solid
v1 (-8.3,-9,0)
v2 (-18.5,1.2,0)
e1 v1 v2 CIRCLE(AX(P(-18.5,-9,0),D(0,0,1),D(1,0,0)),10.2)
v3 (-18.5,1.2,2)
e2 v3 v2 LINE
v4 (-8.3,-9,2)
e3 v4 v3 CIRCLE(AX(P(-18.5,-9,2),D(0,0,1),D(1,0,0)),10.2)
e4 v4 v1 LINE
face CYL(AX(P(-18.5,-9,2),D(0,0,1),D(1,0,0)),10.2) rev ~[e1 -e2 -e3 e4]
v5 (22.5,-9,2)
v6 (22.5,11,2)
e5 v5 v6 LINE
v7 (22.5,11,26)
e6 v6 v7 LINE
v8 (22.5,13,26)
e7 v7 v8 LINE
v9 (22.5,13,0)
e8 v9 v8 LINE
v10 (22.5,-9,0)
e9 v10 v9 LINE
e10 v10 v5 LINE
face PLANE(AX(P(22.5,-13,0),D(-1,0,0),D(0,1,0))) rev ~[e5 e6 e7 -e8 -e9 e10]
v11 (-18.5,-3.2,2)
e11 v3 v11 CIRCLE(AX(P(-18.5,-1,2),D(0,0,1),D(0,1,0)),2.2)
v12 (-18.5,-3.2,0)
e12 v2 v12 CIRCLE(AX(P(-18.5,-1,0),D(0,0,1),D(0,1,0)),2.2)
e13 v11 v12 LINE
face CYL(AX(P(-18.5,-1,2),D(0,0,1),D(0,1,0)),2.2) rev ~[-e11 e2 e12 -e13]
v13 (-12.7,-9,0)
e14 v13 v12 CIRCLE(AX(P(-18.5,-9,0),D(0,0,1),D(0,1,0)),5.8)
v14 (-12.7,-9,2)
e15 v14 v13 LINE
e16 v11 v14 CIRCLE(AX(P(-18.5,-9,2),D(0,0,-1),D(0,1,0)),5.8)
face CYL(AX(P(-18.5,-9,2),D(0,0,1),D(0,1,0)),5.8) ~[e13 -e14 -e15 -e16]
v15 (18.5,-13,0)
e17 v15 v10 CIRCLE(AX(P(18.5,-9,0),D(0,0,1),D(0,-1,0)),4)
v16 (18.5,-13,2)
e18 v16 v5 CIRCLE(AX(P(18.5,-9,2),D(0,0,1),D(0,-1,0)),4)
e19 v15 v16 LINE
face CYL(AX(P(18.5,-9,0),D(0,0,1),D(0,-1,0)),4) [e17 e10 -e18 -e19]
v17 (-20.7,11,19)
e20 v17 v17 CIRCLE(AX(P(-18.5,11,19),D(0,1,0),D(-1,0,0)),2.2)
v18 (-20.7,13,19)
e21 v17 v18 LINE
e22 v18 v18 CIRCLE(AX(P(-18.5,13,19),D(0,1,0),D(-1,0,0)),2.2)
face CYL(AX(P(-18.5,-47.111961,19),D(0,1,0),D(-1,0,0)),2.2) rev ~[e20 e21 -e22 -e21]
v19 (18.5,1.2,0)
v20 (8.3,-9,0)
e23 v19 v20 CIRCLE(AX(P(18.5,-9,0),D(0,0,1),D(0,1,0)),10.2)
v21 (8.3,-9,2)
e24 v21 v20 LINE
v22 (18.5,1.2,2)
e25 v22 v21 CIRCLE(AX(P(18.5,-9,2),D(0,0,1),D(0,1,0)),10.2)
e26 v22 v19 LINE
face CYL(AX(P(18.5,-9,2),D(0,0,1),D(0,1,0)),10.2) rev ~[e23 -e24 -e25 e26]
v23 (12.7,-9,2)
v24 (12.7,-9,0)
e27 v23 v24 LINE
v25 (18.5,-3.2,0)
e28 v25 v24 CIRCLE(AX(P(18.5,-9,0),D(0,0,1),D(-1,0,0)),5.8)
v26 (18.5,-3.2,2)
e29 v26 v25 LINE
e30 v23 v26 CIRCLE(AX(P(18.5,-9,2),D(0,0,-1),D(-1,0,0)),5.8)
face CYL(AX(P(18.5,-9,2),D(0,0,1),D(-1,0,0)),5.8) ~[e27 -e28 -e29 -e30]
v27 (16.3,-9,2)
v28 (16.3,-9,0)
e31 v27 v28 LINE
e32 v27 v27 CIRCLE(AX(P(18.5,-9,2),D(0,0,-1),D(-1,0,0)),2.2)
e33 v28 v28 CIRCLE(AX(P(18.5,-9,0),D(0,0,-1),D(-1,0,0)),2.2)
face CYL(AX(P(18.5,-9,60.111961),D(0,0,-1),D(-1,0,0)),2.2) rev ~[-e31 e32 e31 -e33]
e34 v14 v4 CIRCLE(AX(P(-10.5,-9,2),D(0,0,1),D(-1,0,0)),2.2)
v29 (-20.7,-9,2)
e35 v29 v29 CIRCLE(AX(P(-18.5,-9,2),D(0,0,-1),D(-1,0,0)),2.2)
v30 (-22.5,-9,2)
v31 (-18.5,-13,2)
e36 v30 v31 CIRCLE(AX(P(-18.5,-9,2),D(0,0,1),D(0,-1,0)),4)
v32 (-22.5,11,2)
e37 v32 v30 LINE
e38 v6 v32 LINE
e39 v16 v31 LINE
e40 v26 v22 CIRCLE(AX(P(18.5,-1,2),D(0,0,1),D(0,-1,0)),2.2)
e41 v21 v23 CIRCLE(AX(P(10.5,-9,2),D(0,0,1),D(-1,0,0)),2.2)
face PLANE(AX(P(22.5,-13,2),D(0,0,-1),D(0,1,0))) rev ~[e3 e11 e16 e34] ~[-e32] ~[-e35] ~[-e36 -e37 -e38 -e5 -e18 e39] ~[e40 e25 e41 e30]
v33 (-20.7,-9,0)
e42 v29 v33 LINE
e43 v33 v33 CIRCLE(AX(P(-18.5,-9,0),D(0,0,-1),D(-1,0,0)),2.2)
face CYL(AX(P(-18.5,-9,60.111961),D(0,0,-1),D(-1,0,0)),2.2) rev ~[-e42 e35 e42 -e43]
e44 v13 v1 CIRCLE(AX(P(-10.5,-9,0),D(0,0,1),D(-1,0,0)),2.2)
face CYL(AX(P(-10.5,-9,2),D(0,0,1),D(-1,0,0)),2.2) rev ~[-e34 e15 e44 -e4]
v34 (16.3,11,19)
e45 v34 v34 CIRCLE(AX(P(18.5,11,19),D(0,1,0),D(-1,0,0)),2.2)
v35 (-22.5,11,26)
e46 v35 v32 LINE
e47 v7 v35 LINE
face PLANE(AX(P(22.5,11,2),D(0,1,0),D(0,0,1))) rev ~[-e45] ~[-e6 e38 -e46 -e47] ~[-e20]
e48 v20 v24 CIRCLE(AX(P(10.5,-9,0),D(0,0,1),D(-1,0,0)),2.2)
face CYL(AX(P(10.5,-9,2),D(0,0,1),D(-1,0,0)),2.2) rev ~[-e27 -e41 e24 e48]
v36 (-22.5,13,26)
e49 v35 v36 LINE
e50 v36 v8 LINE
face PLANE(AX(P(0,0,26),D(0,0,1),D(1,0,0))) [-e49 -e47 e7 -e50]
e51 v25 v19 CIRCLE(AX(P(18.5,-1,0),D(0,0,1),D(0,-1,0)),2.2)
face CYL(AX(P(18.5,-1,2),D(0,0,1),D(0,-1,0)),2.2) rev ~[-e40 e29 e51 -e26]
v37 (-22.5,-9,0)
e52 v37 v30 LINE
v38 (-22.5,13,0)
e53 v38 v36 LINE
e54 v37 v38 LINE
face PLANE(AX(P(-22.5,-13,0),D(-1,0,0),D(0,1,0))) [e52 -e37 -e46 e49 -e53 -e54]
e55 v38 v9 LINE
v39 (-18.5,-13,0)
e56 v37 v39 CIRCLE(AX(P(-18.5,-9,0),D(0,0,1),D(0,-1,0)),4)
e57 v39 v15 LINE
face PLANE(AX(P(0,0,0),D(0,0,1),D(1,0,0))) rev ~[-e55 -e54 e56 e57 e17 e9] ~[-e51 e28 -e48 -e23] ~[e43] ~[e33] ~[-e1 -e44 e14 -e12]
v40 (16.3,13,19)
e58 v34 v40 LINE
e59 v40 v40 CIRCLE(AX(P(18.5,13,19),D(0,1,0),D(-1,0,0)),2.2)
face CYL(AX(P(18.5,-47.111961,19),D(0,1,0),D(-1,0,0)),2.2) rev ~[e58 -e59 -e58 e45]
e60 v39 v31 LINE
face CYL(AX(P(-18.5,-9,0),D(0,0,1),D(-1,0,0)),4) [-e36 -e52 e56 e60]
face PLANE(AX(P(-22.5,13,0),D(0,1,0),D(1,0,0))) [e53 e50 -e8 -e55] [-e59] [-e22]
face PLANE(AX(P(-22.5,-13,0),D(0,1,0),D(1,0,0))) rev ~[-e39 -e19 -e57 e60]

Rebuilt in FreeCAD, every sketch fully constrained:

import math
import FreeCAD as App
import Part
import Sketcher

V = App.Vector
Q = App.Units.Quantity


def edges_at(feature, points):
    """Names of the edges that pass closest to the given points."""
    edges = feature.Shape.Edges
    near = lambda p: min(range(len(edges)), key=lambda i: edges[i].distToShape(Part.Vertex(*p))[0])
    return sorted({f"Edge{near(p) + 1}" for p in points})

doc = App.newDocument("Part")
params = doc.addObject("Spreadsheet::Sheet", "Params")
for row, (alias, value) in enumerate([
    ("sketch1_width", "45 mm"),
    ("sketch1_height", "26 mm"),
    ("pad1_length", "26 mm"),
    ("sketch2_width", "24 mm"),
    ("sketch3_diameter", "4.4 mm"),
    ("hole_diameter", "4.4 mm"),
    ("sketch4_diameter", "4.4 mm"),
    ("hole2_diameter", "4.4 mm"),
    ("sketch5_radius", "2.2 mm"),
    ("sketch5_radius2", "10.2 mm"),
    ("fillet_radius", "4 mm"),
], start=1):
    params.set(f"A{row}", alias)
    params.set(f"B{row}", "=" + value)
    params.setAlias(f"B{row}", alias)

body = doc.addObject("PartDesign::Body", "Body")

# Sketch on XY plane
sketch1 = body.newObject("Sketcher::SketchObject", "Sketch")
sketch1.AttachmentSupport = (doc.getObject("XY_Plane"), [""])
sketch1.MapMode = "FlatFace"
sketch1.addGeometry(Part.LineSegment(V(-22, 13, 0), V(-22, -13, 0)), False)
sketch1.addGeometry(Part.LineSegment(V(-22, -13, 0), V(22, -13, 0)), False)
sketch1.addGeometry(Part.LineSegment(V(22, -13, 0), V(22, 13, 0)), False)
sketch1.addGeometry(Part.LineSegment(V(22, 13, 0), V(-22, 13, 0)), False)
sketch1.addConstraint(Sketcher.Constraint("Coincident", 0, 2, 1, 1))
sketch1.addConstraint(Sketcher.Constraint("Coincident", 1, 2, 2, 1))
sketch1.addConstraint(Sketcher.Constraint("Coincident", 2, 2, 3, 1))
sketch1.addConstraint(Sketcher.Constraint("Coincident", 3, 2, 0, 1))
sketch1.addConstraint(Sketcher.Constraint("Vertical", 0))
sketch1.addConstraint(Sketcher.Constraint("Horizontal", 1))
sketch1.addConstraint(Sketcher.Constraint("Vertical", 2))
sketch1.addConstraint(Sketcher.Constraint("Horizontal", 3))
sketch1.addConstraint(Sketcher.Constraint("Symmetric", 0, 2, 2, 2, -1, 1))
sketch1.addConstraint(Sketcher.Constraint("DistanceX", 1, 1, 1, 2, Q("45 mm")))
sketch1.addConstraint(Sketcher.Constraint("DistanceY", 0, 2, 0, 1, Q("26 mm")))
sketch1.setExpression("Constraints[9]", "Params.sketch1_width")
sketch1.setExpression("Constraints[10]", "Params.sketch1_height")
pad1 = body.newObject("PartDesign::Pad", "Pad")
pad1.Profile = sketch1
pad1.setExpression("Length", "Params.pad1_length")

# Sketch on YZ plane
sketch2 = body.newObject("Sketcher::SketchObject", "Sketch001")
sketch2.AttachmentSupport = (doc.getObject("YZ_Plane"), [""])
sketch2.MapMode = "FlatFace"
sketch2.AttachmentOffset = App.Placement(V(0, 0, 22.5), App.Rotation())
sketch2.addGeometry(Part.LineSegment(V(-13, 26, 0), V(-13, 2, 0)), False)
sketch2.addGeometry(Part.LineSegment(V(-13, 2, 0), V(11, 2, 0)), False)
sketch2.addGeometry(Part.LineSegment(V(11, 2, 0), V(11, 26, 0)), False)
sketch2.addGeometry(Part.LineSegment(V(11, 26, 0), V(-13, 26, 0)), False)
sketch2.addConstraint(Sketcher.Constraint("Coincident", 0, 2, 1, 1))
sketch2.addConstraint(Sketcher.Constraint("Coincident", 1, 2, 2, 1))
sketch2.addConstraint(Sketcher.Constraint("Coincident", 2, 2, 3, 1))
sketch2.addConstraint(Sketcher.Constraint("Coincident", 3, 2, 0, 1))
sketch2.addConstraint(Sketcher.Constraint("Vertical", 0))
sketch2.addConstraint(Sketcher.Constraint("Horizontal", 1))
sketch2.addConstraint(Sketcher.Constraint("Vertical", 2))
sketch2.addConstraint(Sketcher.Constraint("Horizontal", 3))
sketch2.addConstraint(Sketcher.Constraint("Equal", 3, 0))
sketch2.addConstraint(Sketcher.Constraint("DistanceX", 1, 1, 1, 2, Q("24 mm")))
sketch2.addConstraint(Sketcher.Constraint("DistanceX", 0, 2, -1, 1, Q("13 mm")))
sketch2.addConstraint(Sketcher.Constraint("DistanceY", -1, 1, 0, 2, Q("2 mm")))
sketch2.setExpression("Constraints[9]", "Params.sketch2_width")
pocket1 = body.newObject("PartDesign::Pocket", "Pocket")
pocket1.Profile = sketch2
pocket1.Type = "ThroughAll"

# Sketch on XY plane
sketch3 = body.newObject("Sketcher::SketchObject", "Sketch002")
sketch3.AttachmentSupport = (doc.getObject("XY_Plane"), [""])
sketch3.MapMode = "FlatFace"
sketch3.AttachmentOffset = App.Placement(V(0, 0, 2), App.Rotation())
sketch3.addGeometry(Part.Circle(V(-18.5, -9, 0), V(0, 0, 1), 2.2), False)
sketch3.addGeometry(Part.Circle(V(18.5, -9, 0), V(0, 0, 1), 2.2), False)
sketch3.addConstraint(Sketcher.Constraint("Equal", 0, 1))
sketch3.addConstraint(Sketcher.Constraint("Symmetric", 0, 3, 1, 3, -2))
sketch3.addConstraint(Sketcher.Constraint("Diameter", 0, Q("4.4 mm")))
sketch3.addConstraint(Sketcher.Constraint("DistanceY", 0, 3, -1, 1, Q("9 mm")))
sketch3.addConstraint(Sketcher.Constraint("DistanceX", 0, 3, 1, 3, Q("37 mm")))
sketch3.setExpression("Constraints[2]", "Params.sketch3_diameter")
doc.recompute()
hole = body.newObject("PartDesign::Hole", "Hole")
hole.Profile = sketch3
hole.ThreadType = "None"
hole.setExpression("Diameter", "Params.hole_diameter")
hole.DepthType = "ThroughAll"

# Sketch on XZ plane
sketch4 = body.newObject("Sketcher::SketchObject", "Sketch003")
sketch4.AttachmentSupport = (doc.getObject("XZ_Plane"), [""])
sketch4.MapMode = "FlatFace"
sketch4.AttachmentOffset = App.Placement(V(0, 0, -11), App.Rotation())
sketch4.addGeometry(Part.Circle(V(-18.5, 19, 0), V(0, 0, 1), 2.2), False)
sketch4.addGeometry(Part.Circle(V(18.5, 19, 0), V(0, 0, 1), 2.2), False)
sketch4.addConstraint(Sketcher.Constraint("Equal", 0, 1))
sketch4.addConstraint(Sketcher.Constraint("Symmetric", 0, 3, 1, 3, -2))
sketch4.addConstraint(Sketcher.Constraint("Diameter", 0, Q("4.4 mm")))
sketch4.addConstraint(Sketcher.Constraint("DistanceY", -1, 1, 0, 3, Q("19 mm")))
sketch4.addConstraint(Sketcher.Constraint("DistanceX", 0, 3, 1, 3, Q("37 mm")))
sketch4.setExpression("Constraints[2]", "Params.sketch4_diameter")
doc.recompute()
hole2 = body.newObject("PartDesign::Hole", "Hole001")
hole2.Profile = sketch4
hole2.ThreadType = "None"
hole2.setExpression("Diameter", "Params.hole2_diameter")
hole2.DepthType = "ThroughAll"

# Sketch on XY plane
sketch5 = body.newObject("Sketcher::SketchObject", "Sketch004")
sketch5.AttachmentSupport = (doc.getObject("XY_Plane"), [""])
sketch5.MapMode = "FlatFace"
sketch5.AttachmentOffset = App.Placement(V(0, 0, 2), App.Rotation())
sketch5.addGeometry(Part.ArcOfCircle(Part.Circle(V(-10.5, -9, 0), V(0, 0, 1), 2.2), math.radians(180), math.radians(360)), False)
sketch5.addGeometry(Part.ArcOfCircle(Part.Circle(V(-18.5, -9, 0), V(0, 0, 1), 10.2), math.radians(0), math.radians(90)), False)
sketch5.addGeometry(Part.ArcOfCircle(Part.Circle(V(-18.5, -1, 0), V(0, 0, 1), 2.2), math.radians(90), math.radians(270)), False)
sketch5.addGeometry(Part.ArcOfCircle(Part.Circle(V(-18.5, -9, 0), V(0, 0, 1), 5.8), math.radians(0), math.radians(90)), False)
sketch5.addGeometry(Part.ArcOfCircle(Part.Circle(V(18.5, -9, 0), V(0, 0, 1), 10.2), math.radians(90), math.radians(180)), False)
sketch5.addGeometry(Part.ArcOfCircle(Part.Circle(V(10.5, -9, 0), V(0, 0, 1), 2.2), math.radians(180), math.radians(360)), False)
sketch5.addGeometry(Part.ArcOfCircle(Part.Circle(V(18.5, -9, 0), V(0, 0, 1), 5.8), math.radians(90), math.radians(180)), False)
sketch5.addGeometry(Part.ArcOfCircle(Part.Circle(V(18.5, -1, 0), V(0, 0, 1), 2.2), math.radians(-90), math.radians(90)), False)
sketch5.addConstraint(Sketcher.Constraint("Tangent", 0, 2, 1, 1))
sketch5.addConstraint(Sketcher.Constraint("Tangent", 1, 2, 2, 1))
sketch5.addConstraint(Sketcher.Constraint("Tangent", 2, 2, 3, 2))
sketch5.addConstraint(Sketcher.Constraint("Tangent", 3, 1, 0, 1))
sketch5.addConstraint(Sketcher.Constraint("Tangent", 4, 2, 5, 1))
sketch5.addConstraint(Sketcher.Constraint("Tangent", 5, 2, 6, 2))
sketch5.addConstraint(Sketcher.Constraint("Tangent", 6, 1, 7, 1))
sketch5.addConstraint(Sketcher.Constraint("Tangent", 7, 2, 4, 1))
sketch5.addConstraint(Sketcher.Constraint("Coincident", 3, 3, 1, 3))
sketch5.addConstraint(Sketcher.Constraint("Coincident", 6, 3, 4, 3))
sketch5.addConstraint(Sketcher.Constraint("Equal", 1, 4))
sketch5.addConstraint(Sketcher.Constraint("Equal", 2, 5))
sketch5.addConstraint(Sketcher.Constraint("Symmetric", 1, 3, 4, 3, -2))
sketch5.addConstraint(Sketcher.Constraint("Horizontal", 0, 3, 1, 3))
sketch5.addConstraint(Sketcher.Constraint("Horizontal", 4, 3, 5, 3))
sketch5.addConstraint(Sketcher.Constraint("Vertical", 1, 3, 2, 3))
sketch5.addConstraint(Sketcher.Constraint("Vertical", 6, 3, 7, 3))
sketch5.addConstraint(Sketcher.Constraint("Radius", 0, Q("2.2 mm")))
sketch5.addConstraint(Sketcher.Constraint("Radius", 1, Q("10.2 mm")))
sketch5.addConstraint(Sketcher.Constraint("DistanceY", 0, 3, -1, 1, Q("9 mm")))
sketch5.addConstraint(Sketcher.Constraint("DistanceX", 0, 3, 4, 3, Q("29 mm")))
sketch5.setExpression("Constraints[17]", "Params.sketch5_radius")
sketch5.setExpression("Constraints[18]", "Params.sketch5_radius2")
pocket2 = body.newObject("PartDesign::Pocket", "Pocket001")
pocket2.Profile = sketch5
pocket2.Type = "ThroughAll"
doc.recompute()

fillet = body.newObject("PartDesign::Fillet", "Fillet")
fillet.Base = (pocket2, edges_at(pocket2, [(-22.5, -13, 1), (22.5, -13, 1)]))
fillet.setExpression("Radius", "Params.fillet_radius")

doc.recompute()
